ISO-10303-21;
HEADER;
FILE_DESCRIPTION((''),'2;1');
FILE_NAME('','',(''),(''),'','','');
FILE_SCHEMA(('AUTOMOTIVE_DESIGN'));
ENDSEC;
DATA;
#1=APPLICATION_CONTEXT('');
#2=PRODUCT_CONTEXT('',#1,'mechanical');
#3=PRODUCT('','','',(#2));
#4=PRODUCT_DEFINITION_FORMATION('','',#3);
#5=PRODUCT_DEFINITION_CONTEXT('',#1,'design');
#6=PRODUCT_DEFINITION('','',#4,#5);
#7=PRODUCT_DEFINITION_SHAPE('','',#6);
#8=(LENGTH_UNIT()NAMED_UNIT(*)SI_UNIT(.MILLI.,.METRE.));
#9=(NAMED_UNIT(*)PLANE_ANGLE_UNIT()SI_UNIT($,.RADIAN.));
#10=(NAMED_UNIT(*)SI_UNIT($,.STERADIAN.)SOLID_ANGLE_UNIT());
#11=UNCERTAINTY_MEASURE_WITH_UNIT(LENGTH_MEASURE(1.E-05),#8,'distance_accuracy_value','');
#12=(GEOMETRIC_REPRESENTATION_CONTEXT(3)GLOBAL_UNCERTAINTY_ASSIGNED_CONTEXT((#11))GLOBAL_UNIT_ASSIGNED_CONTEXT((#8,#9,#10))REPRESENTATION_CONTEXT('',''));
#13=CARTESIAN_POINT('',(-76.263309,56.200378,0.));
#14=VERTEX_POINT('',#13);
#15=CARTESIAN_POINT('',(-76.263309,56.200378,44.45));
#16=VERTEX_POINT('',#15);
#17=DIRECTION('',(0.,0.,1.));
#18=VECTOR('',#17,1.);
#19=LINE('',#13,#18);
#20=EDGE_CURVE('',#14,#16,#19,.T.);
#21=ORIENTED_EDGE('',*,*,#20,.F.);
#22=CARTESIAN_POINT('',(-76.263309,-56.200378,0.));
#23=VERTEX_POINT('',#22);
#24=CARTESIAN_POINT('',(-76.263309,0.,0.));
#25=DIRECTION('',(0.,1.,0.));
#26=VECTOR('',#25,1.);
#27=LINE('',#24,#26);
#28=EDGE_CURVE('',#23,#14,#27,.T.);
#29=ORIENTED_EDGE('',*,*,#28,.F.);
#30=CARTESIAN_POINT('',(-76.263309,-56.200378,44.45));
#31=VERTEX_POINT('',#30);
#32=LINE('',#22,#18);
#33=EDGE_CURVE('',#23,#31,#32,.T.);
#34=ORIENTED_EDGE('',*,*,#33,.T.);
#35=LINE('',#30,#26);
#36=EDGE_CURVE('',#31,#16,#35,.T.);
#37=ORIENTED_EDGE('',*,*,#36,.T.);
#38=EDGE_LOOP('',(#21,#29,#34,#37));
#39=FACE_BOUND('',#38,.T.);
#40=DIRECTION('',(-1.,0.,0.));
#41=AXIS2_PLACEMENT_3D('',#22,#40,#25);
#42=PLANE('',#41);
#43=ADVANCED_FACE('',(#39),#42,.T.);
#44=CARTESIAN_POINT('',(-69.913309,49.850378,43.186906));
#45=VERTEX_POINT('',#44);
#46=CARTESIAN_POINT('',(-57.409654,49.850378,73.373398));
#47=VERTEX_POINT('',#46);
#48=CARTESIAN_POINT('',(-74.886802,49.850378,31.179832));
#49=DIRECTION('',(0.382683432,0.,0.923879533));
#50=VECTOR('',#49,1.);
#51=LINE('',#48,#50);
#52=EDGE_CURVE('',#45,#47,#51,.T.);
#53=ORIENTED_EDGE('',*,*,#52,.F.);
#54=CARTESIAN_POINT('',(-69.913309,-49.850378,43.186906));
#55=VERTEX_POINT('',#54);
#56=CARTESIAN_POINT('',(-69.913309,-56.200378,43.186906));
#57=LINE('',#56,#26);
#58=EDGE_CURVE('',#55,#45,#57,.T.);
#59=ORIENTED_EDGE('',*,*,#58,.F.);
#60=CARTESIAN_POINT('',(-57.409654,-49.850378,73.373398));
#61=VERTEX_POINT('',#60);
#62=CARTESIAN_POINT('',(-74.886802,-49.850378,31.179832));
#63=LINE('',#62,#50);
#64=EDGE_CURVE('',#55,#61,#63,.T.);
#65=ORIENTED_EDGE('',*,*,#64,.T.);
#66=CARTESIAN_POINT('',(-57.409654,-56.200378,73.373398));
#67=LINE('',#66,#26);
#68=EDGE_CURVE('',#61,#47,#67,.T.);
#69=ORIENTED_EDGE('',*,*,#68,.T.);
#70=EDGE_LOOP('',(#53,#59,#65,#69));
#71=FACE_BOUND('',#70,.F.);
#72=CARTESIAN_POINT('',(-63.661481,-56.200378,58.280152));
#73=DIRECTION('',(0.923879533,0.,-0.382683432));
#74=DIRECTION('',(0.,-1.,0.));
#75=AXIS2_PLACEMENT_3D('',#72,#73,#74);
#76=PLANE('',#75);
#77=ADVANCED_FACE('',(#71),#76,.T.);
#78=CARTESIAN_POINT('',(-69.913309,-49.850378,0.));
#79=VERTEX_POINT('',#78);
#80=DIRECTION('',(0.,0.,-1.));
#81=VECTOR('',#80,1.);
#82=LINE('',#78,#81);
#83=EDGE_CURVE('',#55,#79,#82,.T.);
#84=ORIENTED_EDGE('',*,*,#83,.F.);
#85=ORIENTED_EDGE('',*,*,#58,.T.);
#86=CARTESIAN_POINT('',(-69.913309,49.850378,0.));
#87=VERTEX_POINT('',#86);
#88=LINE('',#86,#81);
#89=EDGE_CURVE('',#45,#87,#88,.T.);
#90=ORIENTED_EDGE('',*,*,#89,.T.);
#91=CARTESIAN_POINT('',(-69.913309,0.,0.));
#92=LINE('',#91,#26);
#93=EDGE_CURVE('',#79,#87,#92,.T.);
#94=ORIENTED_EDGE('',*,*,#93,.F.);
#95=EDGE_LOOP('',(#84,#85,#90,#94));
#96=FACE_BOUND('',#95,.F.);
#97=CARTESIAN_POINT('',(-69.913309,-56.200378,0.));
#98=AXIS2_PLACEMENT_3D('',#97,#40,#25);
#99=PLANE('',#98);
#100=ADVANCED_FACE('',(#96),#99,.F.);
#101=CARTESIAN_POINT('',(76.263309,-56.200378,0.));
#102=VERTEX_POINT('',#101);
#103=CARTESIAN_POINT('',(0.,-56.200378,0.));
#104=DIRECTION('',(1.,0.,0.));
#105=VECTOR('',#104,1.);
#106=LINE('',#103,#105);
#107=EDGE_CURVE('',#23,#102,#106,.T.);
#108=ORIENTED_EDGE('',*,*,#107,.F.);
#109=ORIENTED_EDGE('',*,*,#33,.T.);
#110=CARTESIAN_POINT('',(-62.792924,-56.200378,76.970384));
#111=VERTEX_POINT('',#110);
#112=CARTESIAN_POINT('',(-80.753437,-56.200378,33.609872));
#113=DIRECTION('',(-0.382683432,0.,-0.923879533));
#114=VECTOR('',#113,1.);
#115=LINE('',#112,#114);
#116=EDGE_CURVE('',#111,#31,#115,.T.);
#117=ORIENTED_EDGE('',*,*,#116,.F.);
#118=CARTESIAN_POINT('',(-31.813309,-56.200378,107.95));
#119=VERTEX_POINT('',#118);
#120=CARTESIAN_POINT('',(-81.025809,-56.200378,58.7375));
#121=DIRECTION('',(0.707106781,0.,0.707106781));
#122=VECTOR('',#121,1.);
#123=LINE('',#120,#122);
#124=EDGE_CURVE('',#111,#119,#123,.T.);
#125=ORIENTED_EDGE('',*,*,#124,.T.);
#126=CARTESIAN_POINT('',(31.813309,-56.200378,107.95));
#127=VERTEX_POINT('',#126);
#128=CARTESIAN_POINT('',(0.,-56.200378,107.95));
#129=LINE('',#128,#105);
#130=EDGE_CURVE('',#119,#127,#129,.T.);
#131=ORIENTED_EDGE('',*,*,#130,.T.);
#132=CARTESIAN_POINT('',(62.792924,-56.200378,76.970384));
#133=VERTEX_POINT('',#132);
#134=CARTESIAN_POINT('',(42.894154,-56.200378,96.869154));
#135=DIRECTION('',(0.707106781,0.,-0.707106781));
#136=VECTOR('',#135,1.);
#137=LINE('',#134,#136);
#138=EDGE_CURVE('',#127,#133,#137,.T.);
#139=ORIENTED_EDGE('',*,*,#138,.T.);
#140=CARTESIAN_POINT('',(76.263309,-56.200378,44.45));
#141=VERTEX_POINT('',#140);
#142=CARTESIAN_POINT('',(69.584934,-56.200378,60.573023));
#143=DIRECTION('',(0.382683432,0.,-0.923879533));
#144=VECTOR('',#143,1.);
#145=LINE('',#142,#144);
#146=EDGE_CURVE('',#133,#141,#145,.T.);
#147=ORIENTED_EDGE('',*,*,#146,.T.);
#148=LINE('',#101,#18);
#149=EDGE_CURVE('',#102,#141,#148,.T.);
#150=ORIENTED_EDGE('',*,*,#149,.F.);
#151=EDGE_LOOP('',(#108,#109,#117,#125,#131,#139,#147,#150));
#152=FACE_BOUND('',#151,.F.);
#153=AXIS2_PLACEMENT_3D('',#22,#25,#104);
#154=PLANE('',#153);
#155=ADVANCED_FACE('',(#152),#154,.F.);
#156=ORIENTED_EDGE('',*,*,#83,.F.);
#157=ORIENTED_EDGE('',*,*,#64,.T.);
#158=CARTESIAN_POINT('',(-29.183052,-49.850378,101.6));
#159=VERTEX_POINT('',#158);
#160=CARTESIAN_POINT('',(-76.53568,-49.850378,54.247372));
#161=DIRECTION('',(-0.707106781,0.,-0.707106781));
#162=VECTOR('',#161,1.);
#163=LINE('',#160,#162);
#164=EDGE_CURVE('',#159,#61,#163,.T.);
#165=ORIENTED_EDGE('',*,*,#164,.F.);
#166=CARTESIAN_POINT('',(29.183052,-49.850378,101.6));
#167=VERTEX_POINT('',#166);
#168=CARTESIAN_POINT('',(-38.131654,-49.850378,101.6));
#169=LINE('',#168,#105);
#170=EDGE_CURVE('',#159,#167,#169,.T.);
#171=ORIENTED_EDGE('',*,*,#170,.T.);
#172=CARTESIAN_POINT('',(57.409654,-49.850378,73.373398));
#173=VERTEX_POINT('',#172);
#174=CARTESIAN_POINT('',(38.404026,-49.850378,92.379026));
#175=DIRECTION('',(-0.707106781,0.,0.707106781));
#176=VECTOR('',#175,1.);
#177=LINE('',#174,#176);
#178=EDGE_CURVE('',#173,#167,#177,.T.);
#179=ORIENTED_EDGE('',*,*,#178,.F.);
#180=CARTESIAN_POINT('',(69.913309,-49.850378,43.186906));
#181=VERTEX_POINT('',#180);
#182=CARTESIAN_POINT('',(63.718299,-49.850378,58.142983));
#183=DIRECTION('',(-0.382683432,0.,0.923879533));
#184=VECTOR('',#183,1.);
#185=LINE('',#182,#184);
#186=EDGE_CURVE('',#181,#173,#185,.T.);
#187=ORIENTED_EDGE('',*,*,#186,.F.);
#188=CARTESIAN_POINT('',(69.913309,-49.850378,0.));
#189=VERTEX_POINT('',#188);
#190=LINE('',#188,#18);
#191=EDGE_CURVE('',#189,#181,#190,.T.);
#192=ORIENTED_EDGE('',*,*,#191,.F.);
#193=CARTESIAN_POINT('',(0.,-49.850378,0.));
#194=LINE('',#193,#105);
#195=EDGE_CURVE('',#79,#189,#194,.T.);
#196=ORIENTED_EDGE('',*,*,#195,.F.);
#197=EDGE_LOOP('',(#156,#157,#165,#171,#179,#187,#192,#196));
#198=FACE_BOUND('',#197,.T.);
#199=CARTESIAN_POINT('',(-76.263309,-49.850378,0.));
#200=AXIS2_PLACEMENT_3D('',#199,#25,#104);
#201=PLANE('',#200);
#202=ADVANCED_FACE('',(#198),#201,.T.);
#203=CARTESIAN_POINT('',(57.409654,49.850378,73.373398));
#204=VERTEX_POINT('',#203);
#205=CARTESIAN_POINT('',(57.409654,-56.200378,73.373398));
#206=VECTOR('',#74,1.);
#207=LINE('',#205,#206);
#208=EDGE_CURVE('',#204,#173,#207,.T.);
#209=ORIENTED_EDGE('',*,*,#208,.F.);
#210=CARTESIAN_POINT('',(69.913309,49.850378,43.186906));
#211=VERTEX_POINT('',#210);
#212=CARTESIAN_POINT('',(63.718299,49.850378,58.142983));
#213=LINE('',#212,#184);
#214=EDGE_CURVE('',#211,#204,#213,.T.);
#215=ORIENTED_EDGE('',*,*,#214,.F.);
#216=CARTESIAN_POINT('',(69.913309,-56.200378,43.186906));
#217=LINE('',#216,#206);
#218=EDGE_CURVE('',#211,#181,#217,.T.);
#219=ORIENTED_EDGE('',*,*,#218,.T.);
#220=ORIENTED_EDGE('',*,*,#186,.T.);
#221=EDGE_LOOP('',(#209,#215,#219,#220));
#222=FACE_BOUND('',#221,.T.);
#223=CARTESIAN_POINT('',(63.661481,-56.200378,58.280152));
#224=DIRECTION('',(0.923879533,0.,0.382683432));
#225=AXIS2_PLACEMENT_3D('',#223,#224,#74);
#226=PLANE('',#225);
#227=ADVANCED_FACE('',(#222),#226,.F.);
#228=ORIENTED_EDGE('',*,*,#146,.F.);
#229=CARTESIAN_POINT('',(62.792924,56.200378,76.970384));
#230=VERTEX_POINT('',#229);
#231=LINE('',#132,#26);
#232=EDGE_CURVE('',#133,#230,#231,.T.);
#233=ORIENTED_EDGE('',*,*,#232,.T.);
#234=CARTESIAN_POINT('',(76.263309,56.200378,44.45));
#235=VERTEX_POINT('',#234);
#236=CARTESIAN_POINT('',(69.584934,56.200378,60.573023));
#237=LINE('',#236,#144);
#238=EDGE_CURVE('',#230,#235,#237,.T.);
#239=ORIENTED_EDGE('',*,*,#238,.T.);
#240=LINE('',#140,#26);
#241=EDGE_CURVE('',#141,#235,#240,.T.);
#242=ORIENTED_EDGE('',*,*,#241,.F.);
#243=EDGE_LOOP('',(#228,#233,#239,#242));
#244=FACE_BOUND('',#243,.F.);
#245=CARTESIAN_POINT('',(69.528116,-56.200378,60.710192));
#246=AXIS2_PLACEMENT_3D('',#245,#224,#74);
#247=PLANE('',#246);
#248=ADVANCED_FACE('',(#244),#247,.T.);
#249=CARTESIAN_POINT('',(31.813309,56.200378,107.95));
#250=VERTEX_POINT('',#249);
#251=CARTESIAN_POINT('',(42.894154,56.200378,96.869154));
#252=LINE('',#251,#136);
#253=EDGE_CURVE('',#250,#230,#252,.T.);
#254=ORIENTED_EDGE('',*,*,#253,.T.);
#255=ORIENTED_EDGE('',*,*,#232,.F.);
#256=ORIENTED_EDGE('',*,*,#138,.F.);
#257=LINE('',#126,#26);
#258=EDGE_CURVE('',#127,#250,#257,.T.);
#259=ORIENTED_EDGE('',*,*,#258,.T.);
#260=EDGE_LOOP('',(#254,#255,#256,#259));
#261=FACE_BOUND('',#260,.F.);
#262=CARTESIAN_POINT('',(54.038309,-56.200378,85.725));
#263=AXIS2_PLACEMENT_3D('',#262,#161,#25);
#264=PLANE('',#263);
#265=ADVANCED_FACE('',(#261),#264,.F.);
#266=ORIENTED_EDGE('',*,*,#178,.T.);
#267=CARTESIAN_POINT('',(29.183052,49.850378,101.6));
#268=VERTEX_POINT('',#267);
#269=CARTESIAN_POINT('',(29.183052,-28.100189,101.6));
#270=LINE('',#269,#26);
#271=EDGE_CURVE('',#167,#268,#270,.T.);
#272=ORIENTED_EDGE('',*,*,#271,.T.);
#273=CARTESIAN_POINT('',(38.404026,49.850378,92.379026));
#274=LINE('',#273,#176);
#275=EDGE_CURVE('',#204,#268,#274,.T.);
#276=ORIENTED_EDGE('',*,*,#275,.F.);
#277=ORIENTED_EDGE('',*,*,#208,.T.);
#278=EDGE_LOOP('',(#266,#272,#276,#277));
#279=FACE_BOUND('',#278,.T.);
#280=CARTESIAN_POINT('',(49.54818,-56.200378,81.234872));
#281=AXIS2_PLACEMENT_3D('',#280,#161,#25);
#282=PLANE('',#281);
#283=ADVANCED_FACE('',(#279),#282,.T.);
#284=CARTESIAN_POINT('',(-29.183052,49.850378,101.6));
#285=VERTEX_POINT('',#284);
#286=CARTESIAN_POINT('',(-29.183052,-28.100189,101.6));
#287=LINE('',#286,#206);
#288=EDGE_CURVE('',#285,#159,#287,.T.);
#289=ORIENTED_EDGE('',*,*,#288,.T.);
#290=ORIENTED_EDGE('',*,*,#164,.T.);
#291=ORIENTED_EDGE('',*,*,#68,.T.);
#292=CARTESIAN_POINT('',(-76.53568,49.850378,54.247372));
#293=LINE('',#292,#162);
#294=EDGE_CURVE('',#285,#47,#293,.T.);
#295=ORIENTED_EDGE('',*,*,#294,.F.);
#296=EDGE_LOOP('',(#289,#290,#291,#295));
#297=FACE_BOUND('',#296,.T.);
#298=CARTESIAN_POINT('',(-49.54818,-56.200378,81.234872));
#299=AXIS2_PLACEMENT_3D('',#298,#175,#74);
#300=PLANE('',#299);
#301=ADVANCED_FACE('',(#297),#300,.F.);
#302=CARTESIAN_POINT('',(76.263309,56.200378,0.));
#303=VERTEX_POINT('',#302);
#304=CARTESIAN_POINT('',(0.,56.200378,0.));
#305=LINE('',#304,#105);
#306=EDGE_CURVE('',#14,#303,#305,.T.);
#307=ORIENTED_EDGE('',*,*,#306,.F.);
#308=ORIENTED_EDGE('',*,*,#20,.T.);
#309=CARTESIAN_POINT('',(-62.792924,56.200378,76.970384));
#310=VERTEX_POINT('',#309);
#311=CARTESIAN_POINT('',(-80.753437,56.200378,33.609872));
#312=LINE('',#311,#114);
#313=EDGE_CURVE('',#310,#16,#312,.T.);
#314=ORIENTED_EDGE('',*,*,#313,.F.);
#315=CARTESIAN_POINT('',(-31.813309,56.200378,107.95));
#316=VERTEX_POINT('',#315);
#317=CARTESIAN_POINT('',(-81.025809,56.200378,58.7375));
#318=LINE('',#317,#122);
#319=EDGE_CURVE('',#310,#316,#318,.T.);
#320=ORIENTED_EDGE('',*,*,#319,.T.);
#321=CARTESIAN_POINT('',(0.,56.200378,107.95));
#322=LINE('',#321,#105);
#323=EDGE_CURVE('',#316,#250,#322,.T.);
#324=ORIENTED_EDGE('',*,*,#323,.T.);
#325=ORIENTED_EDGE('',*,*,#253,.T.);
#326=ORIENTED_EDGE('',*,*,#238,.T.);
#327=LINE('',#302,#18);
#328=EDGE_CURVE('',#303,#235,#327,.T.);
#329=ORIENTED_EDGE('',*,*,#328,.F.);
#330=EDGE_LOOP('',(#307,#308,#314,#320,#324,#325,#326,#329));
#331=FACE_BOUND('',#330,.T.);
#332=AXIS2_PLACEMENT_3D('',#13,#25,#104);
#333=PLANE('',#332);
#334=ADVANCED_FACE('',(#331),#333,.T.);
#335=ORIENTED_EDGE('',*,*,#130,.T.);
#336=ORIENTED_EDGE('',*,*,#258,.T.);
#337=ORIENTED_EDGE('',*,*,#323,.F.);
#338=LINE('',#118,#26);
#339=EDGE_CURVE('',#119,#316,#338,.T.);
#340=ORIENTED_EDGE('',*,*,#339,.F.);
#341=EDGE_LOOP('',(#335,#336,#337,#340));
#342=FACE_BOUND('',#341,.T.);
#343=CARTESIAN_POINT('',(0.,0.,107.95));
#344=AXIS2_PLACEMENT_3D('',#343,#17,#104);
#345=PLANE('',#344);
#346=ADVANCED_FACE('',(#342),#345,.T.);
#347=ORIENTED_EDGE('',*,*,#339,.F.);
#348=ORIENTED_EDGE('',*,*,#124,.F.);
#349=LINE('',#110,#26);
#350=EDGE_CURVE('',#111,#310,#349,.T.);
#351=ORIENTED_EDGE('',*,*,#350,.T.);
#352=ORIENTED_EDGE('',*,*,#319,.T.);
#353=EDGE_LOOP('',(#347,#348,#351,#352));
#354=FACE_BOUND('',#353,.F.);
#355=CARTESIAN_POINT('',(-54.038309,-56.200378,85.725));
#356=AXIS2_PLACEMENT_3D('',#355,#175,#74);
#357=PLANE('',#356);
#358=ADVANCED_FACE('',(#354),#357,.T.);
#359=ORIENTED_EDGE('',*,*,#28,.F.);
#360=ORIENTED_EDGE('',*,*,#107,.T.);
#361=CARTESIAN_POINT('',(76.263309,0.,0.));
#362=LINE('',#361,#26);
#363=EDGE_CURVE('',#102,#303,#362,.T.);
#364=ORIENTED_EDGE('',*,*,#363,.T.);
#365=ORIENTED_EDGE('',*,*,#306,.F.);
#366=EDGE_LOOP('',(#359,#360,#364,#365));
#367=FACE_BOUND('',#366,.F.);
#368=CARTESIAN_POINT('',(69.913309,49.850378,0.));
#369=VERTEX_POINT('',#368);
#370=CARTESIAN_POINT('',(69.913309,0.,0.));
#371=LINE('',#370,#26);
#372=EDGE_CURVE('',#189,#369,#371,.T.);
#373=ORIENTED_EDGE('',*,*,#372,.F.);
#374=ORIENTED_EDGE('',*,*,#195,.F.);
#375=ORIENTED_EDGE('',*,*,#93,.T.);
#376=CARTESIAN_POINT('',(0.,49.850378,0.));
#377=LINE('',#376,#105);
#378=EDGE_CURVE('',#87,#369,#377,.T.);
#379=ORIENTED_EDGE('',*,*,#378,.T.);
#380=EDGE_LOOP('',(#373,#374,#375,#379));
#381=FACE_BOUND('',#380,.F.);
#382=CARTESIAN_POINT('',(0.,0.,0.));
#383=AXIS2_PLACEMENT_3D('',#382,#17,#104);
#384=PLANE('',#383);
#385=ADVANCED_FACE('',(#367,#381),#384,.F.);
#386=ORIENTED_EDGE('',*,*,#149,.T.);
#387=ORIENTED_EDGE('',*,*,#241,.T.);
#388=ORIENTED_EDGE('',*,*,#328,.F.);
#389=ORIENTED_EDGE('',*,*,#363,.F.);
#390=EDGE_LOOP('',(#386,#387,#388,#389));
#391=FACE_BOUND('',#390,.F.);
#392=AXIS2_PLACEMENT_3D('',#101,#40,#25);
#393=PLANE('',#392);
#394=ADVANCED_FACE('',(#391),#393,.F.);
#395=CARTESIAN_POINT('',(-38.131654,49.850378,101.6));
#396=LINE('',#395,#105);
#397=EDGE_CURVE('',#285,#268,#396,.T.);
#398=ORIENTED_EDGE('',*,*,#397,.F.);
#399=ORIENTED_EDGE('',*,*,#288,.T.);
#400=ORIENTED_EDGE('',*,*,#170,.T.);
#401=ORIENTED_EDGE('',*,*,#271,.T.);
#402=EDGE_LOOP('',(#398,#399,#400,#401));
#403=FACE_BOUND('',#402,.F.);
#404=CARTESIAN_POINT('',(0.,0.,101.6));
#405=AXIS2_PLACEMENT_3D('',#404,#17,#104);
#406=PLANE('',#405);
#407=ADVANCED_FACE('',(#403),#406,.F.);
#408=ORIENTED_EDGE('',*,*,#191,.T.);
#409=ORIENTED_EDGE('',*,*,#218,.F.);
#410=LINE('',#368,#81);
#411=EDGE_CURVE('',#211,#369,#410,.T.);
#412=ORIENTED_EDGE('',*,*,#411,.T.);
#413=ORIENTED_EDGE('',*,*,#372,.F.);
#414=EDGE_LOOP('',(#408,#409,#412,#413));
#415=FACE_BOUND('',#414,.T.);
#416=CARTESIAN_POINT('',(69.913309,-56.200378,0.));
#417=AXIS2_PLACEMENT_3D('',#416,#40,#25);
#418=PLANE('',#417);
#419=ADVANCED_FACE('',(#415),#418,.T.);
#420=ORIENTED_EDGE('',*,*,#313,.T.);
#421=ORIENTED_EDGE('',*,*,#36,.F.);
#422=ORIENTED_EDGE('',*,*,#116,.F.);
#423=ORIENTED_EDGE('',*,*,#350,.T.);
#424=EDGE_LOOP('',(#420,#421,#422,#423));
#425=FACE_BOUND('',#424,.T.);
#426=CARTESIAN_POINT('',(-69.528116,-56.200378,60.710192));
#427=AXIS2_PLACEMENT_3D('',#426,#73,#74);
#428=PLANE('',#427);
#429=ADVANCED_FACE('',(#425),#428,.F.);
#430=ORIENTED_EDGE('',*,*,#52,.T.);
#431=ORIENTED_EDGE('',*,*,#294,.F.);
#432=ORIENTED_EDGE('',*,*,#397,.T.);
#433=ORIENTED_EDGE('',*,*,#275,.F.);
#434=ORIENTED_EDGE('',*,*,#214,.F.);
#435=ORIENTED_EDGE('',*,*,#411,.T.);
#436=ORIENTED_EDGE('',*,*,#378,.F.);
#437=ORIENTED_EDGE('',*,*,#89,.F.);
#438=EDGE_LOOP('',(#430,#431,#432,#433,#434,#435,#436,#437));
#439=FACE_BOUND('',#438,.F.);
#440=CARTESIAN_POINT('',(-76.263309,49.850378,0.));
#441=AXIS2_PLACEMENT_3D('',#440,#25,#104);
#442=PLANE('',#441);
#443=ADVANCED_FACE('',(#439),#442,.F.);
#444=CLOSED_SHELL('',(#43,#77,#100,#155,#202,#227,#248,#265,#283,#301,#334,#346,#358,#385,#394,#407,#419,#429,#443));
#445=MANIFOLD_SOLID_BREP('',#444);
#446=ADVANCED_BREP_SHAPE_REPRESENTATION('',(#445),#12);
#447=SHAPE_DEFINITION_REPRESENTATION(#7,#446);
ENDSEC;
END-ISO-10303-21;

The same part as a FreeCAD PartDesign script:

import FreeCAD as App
import Part
import Sketcher
from FreeCAD import Vector
Q = App.Units.Quantity


def edges_at(feature, points):
    """Names of the edges that pass closest to the given points."""
    edges = feature.Shape.Edges
    near = lambda p: min(range(len(edges)), key=lambda i: edges[i].distToShape(Part.Vertex(*p))[0])
    return sorted({f"Edge{near(p) + 1}" for p in points})


def faces_at(feature, points):
    """Names of the faces that lie closest to the given points."""
    faces = feature.Shape.Faces
    near = lambda p: min(range(len(faces)), key=lambda i: faces[i].distToShape(Part.Vertex(*p))[0])
    return sorted({f"Face{near(p) + 1}" for p in points})

doc = App.newDocument("Part")
body = doc.addObject("PartDesign::Body", "Body")

# Sketch on XY plane
sketch1 = body.newObject("Sketcher::SketchObject", "Sketch")
sketch1.AttachmentSupport = (doc.getObject("XY_Plane"), [""])
sketch1.MapMode = "FlatFace"
sketch1.addGeometry([
    Part.LineSegment(Vector(-76, 56, 0), Vector(-76, -56, 0)),
    Part.LineSegment(Vector(-76, -56, 0), Vector(76, -56, 0)),
    Part.LineSegment(Vector(76, -56, 0), Vector(76, 56, 0)),
    Part.LineSegment(Vector(76, 56, 0), Vector(-76, 56, 0)),
], False)
sketch1.addConstraint([
    Sketcher.Constraint("Coincident", 0, 2, 1, 1),
    Sketcher.Constraint("Coincident", 1, 2, 2, 1),
    Sketcher.Constraint("Coincident", 2, 2, 3, 1),
    Sketcher.Constraint("Coincident", 3, 2, 0, 1),
    Sketcher.Constraint("Vertical", 0),
    Sketcher.Constraint("Horizontal", 1),
    Sketcher.Constraint("Vertical", 2),
    Sketcher.Constraint("Horizontal", 3),
    Sketcher.Constraint("Symmetric", 0, 2, 2, 2, -1, 1),
    Sketcher.Constraint("DistanceX", 1, 1, 1, 2, 152.526617),
    Sketcher.Constraint("DistanceY", 0, 2, 0, 1, 112.400755),
])
pad1 = body.newObject("PartDesign::Pad", "Pad")
pad1.Profile = sketch1
pad1.Length = Q("4.25 in")
doc.recompute()

chamfer = body.newObject("PartDesign::Chamfer", "Chamfer")
chamfer.Base = (pad1, edges_at(pad1, [(-76.263, 0, 107.95)]))
chamfer.Size = Q("1.75 in")
doc.recompute()

chamfer2 = body.newObject("PartDesign::Chamfer", "Chamfer001")
chamfer2.Base = (chamfer, edges_at(chamfer, [(76.263, 0, 107.95)]))
chamfer2.Size = Q("1.75 in")
doc.recompute()

chamfer3 = body.newObject("PartDesign::Chamfer", "Chamfer002")
chamfer3.Base = (chamfer2, edges_at(chamfer2, [(-76.263, 0, 63.5)]))
chamfer3.Size = Q("0.75 in")
doc.recompute()

chamfer4 = body.newObject("PartDesign::Chamfer", "Chamfer003")
chamfer4.Base = (chamfer3, edges_at(chamfer3, [(76.263, 0, 63.5)]))
chamfer4.Size = Q("0.75 in")
doc.recompute()

thickness = body.newObject("PartDesign::Thickness", "Thickness")
thickness.Base = (chamfer4, faces_at(chamfer4, [(0, 0, 0)]))
thickness.Value = Q("0.25 in")
thickness.Reversed = True
thickness.Join = "Arc"

doc.recompute()
